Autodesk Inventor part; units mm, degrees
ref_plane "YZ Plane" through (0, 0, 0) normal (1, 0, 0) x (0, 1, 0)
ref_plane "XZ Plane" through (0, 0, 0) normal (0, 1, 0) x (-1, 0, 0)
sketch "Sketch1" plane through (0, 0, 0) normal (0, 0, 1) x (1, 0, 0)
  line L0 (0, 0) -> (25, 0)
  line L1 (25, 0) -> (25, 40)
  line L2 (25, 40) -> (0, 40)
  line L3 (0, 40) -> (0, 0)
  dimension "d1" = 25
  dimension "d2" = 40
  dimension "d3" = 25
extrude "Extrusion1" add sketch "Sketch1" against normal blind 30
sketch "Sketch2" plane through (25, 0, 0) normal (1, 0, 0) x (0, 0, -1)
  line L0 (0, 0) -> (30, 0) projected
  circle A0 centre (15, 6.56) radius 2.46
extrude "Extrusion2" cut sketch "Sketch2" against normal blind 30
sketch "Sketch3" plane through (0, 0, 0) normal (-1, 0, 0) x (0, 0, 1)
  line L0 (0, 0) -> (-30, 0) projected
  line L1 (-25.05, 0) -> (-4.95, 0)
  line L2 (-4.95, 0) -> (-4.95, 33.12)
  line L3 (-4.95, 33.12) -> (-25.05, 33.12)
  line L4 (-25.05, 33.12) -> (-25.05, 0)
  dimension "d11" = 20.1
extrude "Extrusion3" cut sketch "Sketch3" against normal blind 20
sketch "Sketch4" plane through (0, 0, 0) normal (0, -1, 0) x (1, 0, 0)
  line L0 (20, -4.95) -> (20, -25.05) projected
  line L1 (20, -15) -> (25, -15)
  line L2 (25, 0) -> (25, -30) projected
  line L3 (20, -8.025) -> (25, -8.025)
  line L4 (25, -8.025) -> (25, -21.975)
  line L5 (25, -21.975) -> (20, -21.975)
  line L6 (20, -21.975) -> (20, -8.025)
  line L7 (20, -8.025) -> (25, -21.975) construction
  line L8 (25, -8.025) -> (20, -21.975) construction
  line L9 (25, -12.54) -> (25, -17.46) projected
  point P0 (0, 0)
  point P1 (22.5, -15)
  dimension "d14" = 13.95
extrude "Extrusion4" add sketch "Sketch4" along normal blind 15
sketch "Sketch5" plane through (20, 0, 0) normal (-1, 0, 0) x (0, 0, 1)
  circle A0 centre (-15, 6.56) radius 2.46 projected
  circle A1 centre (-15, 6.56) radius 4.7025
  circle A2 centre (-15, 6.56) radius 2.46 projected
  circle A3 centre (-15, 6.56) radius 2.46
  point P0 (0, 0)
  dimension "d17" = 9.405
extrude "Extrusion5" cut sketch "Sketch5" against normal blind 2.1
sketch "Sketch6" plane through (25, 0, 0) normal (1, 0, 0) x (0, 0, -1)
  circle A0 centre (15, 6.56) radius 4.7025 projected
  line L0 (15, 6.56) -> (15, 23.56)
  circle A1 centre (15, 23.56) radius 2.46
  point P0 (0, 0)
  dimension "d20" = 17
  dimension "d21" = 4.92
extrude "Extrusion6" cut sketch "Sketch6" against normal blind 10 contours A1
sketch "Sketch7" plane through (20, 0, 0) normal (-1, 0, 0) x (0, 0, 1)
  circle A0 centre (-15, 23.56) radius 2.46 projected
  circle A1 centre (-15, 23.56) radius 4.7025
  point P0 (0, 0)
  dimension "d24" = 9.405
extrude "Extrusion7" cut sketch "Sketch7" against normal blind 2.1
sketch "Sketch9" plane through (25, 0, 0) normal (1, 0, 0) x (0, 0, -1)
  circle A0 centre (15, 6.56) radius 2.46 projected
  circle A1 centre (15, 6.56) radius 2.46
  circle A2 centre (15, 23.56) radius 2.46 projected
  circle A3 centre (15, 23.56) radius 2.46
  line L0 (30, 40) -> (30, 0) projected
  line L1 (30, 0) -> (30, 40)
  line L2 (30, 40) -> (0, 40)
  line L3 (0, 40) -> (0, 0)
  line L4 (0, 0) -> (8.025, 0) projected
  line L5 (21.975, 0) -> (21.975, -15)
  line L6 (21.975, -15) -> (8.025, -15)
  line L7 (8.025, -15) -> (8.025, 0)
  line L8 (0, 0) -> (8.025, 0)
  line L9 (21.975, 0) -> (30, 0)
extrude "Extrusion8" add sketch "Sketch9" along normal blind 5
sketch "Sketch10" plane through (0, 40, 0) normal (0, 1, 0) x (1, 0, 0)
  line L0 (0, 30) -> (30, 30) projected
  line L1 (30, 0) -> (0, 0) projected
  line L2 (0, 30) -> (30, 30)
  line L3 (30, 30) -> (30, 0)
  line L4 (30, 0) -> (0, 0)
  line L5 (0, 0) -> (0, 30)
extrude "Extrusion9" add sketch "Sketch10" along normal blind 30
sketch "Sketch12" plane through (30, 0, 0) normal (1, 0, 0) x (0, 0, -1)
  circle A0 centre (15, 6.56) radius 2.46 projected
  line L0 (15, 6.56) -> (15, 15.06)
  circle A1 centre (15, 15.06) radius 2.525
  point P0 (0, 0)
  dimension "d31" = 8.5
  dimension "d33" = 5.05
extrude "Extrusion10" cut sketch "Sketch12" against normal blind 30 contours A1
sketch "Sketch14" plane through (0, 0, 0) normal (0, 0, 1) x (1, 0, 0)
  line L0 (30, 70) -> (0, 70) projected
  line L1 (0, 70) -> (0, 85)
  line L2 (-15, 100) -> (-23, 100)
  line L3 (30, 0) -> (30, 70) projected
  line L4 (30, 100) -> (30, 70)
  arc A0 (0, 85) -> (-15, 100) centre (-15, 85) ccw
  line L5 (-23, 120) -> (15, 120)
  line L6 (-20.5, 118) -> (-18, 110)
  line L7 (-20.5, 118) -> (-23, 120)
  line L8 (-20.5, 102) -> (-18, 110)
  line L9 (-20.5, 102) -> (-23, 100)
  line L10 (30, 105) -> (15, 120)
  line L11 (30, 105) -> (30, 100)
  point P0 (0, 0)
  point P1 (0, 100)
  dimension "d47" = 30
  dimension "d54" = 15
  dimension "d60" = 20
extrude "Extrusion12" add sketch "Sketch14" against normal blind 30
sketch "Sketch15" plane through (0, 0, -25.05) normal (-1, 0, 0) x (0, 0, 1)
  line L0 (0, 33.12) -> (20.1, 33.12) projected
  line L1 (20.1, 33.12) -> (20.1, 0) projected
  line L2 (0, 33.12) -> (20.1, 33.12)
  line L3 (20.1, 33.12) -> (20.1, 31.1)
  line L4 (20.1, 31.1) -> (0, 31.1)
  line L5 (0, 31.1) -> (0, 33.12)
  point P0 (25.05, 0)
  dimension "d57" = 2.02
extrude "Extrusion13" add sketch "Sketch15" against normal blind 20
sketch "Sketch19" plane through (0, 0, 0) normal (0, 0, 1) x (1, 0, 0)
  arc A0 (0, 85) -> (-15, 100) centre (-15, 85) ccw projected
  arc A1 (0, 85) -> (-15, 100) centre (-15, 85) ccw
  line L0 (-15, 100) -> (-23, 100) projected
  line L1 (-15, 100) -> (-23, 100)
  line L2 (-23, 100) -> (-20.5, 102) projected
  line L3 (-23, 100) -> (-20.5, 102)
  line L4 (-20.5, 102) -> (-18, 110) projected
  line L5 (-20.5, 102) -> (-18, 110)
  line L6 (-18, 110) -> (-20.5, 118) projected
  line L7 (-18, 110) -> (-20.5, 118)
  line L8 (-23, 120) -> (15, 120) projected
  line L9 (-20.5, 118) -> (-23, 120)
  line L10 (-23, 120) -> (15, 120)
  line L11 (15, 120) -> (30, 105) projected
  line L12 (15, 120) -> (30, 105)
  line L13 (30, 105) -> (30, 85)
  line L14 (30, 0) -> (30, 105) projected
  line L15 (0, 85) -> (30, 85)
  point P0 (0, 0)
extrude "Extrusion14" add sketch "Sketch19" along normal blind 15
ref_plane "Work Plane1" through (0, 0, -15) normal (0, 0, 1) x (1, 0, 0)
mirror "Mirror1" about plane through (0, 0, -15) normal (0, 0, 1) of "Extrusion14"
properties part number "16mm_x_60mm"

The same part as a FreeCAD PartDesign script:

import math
import FreeCAD as App
import Part
import Sketcher
Q = App.Units.Quantity

doc = App.newDocument("Part")
body = doc.addObject("PartDesign::Body", "Body")

sketch1 = body.newObject("Sketcher::SketchObject", "Sketch")
sketch1.AttachmentSupport = (doc.getObject("XY_Plane"), [""])
sketch1.MapMode = "FlatFace"
sketch1.addGeometry([
    Part.LineSegment(App.Vector(0, 40, 0), App.Vector(0, 0, 0)),
    Part.LineSegment(App.Vector(0, 0, 0), App.Vector(25, 0, 0)),
    Part.LineSegment(App.Vector(25, 0, 0), App.Vector(25, 40, 0)),
    Part.LineSegment(App.Vector(25, 40, 0), App.Vector(0, 40, 0)),
], False)
sketch1.addConstraint([
    Sketcher.Constraint("Coincident", 0, 2, 1, 1),
    Sketcher.Constraint("Coincident", 1, 2, 2, 1),
    Sketcher.Constraint("Coincident", 2, 2, 3, 1),
    Sketcher.Constraint("Coincident", 3, 2, 0, 1),
    Sketcher.Constraint("Vertical", 0),
    Sketcher.Constraint("Horizontal", 1),
    Sketcher.Constraint("Vertical", 2),
    Sketcher.Constraint("Horizontal", 3),
    Sketcher.Constraint("Coincident", 0, 2, -1, 1),
    Sketcher.Constraint("DistanceX", 1, 1, 1, 2, 25.0),
    Sketcher.Constraint("DistanceY", 0, 2, 0, 1, 40.0),
])
pad1 = body.newObject("PartDesign::Pad", "Pad")
pad1.Profile = sketch1
pad1.Length = 30
pad1.Reversed = True

sketch2 = body.newObject("Sketcher::SketchObject", "Sketch001")
sketch2.AttachmentSupport = (doc.getObject("YZ_Plane"), [""])
sketch2.MapMode = "FlatFace"
sketch2.AttachmentOffset = App.Placement(App.Vector(0, 0, 25), App.Rotation())
sketch2.addGeometry(Part.Circle(App.Vector(6.56, -15, 0), App.Vector(0, 0, 1), 2.46), False)
sketch2.addConstraint([
    Sketcher.Constraint("Diameter", 0, 4.92),
    Sketcher.Constraint("DistanceY", 0, 3, -1, 1, 15.0),
    Sketcher.Constraint("DistanceX", -1, 1, 0, 3, 6.56),
])
pocket1 = body.newObject("PartDesign::Pocket", "Pocket")
pocket1.Profile = sketch2
pocket1.Length = 30

sketch3 = body.newObject("Sketcher::SketchObject", "Sketch002")
sketch3.AttachmentSupport = (doc.getObject("YZ_Plane"), [""])
sketch3.MapMode = "FlatFace"
sketch3.addGeometry([
    Part.LineSegment(App.Vector(0, -25.05, 0), App.Vector(0, -4.95, 0)),
    Part.LineSegment(App.Vector(0, -4.95, 0), App.Vector(33.12, -4.95, 0)),
    Part.LineSegment(App.Vector(33.12, -4.95, 0), App.Vector(33.12, -25.05, 0)),
    Part.LineSegment(App.Vector(33.12, -25.05, 0), App.Vector(0, -25.05, 0)),
], False)
sketch3.addConstraint([
    Sketcher.Constraint("Coincident", 0, 2, 1, 1),
    Sketcher.Constraint("Coincident", 1, 2, 2, 1),
    Sketcher.Constraint("Coincident", 2, 2, 3, 1),
    Sketcher.Constraint("Coincident", 3, 2, 0, 1),
    Sketcher.Constraint("Vertical", 0),
    Sketcher.Constraint("Horizontal", 1),
    Sketcher.Constraint("Vertical", 2),
    Sketcher.Constraint("Horizontal", 3),
    Sketcher.Constraint("PointOnObject", 0, 2, -2),
    Sketcher.Constraint("DistanceY", 0, 1, 0, 2, 20.1),
    Sketcher.Constraint("DistanceX", 1, 1, 1, 2, 33.12),
    Sketcher.Constraint("DistanceY", 0, 2, -1, 1, 4.95),
])
pocket2 = body.newObject("PartDesign::Pocket", "Pocket001")
pocket2.Profile = sketch3
pocket2.Length = 20
pocket2.Reversed = True

sketch4 = body.newObject("Sketcher::SketchObject", "Sketch003")
sketch4.AttachmentSupport = (doc.getObject("XZ_Plane"), [""])
sketch4.MapMode = "FlatFace"
sketch4.addGeometry([
    Part.LineSegment(App.Vector(25, -8.025, 0), App.Vector(20, -8.025, 0)),
    Part.LineSegment(App.Vector(20, -8.025, 0), App.Vector(20, -21.975, 0)),
    Part.LineSegment(App.Vector(20, -21.975, 0), App.Vector(25, -21.975, 0)),
    Part.LineSegment(App.Vector(25, -21.975, 0), App.Vector(25, -8.025, 0)),
], False)
sketch4.addConstraint([
    Sketcher.Constraint("Coincident", 0, 2, 1, 1),
    Sketcher.Constraint("Coincident", 1, 2, 2, 1),
    Sketcher.Constraint("Coincident", 2, 2, 3, 1),
    Sketcher.Constraint("Coincident", 3, 2, 0, 1),
    Sketcher.Constraint("Horizontal", 0),
    Sketcher.Constraint("Vertical", 1),
    Sketcher.Constraint("Horizontal", 2),
    Sketcher.Constraint("Vertical", 3),
    Sketcher.Constraint("DistanceY", 1, 2, 1, 1, 13.95),
    Sketcher.Constraint("DistanceX", 0, 2, 0, 1, 5.0),
    Sketcher.Constraint("DistanceX", -1, 1, 0, 2, 20.0),
    Sketcher.Constraint("DistanceY", 0, 2, -1, 1, 8.025),
])
pad2 = body.newObject("PartDesign::Pad", "Pad001")
pad2.Profile = sketch4
pad2.Length = 15

sketch5 = body.newObject("Sketcher::SketchObject", "Sketch004")
sketch5.AttachmentSupport = (doc.getObject("YZ_Plane"), [""])
sketch5.MapMode = "FlatFace"
sketch5.AttachmentOffset = App.Placement(App.Vector(0, 0, 20), App.Rotation())
sketch5.addGeometry([
    Part.Circle(App.Vector(6.56, -15, 0), App.Vector(0, 0, 1), 4.7025),
    Part.Circle(App.Vector(6.56, -15, 0), App.Vector(0, 0, 1), 2.46),
], False)
sketch5.addConstraint([
    Sketcher.Constraint("Coincident", 1, 3, 0, 3),
    Sketcher.Constraint("Diameter", 0, 9.405),
    Sketcher.Constraint("Diameter", 1, 4.92),
    Sketcher.Constraint("DistanceY", 0, 3, -1, 1, 15.0),
    Sketcher.Constraint("DistanceX", -1, 1, 0, 3, 6.56),
])
pocket3 = body.newObject("PartDesign::Pocket", "Pocket002")
pocket3.Profile = sketch5
pocket3.Length = 2.1
pocket3.Reversed = True

sketch6 = body.newObject("Sketcher::SketchObject", "Sketch005")
sketch6.AttachmentSupport = (doc.getObject("YZ_Plane"), [""])
sketch6.MapMode = "FlatFace"
sketch6.AttachmentOffset = App.Placement(App.Vector(0, 0, 25), App.Rotation())
sketch6.addGeometry(Part.Circle(App.Vector(23.56, -15, 0), App.Vector(0, 0, 1), 2.46), False)
sketch6.addConstraint([
    Sketcher.Constraint("Diameter", 0, 4.92),
    Sketcher.Constraint("DistanceY", 0, 3, -1, 1, 15.0),
    Sketcher.Constraint("DistanceX", -1, 1, 0, 3, 23.56),
])
pocket4 = body.newObject("PartDesign::Pocket", "Pocket003")
pocket4.Profile = sketch6
pocket4.Length = 10

sketch7 = body.newObject("Sketcher::SketchObject", "Sketch006")
sketch7.AttachmentSupport = (doc.getObject("YZ_Plane"), [""])
sketch7.MapMode = "FlatFace"
sketch7.AttachmentOffset = App.Placement(App.Vector(0, 0, 20), App.Rotation())
sketch7.addGeometry([
    Part.Circle(App.Vector(23.56, -15, 0), App.Vector(0, 0, 1), 4.7025),
    Part.Circle(App.Vector(23.56, -15, 0), App.Vector(0, 0, 1), 2.46),
], False)
sketch7.addConstraint([
    Sketcher.Constraint("Coincident", 1, 3, 0, 3),
    Sketcher.Constraint("Diameter", 0, 9.405),
    Sketcher.Constraint("Diameter", 1, 4.92),
    Sketcher.Constraint("DistanceY", 0, 3, -1, 1, 15.0),
    Sketcher.Constraint("DistanceX", -1, 1, 0, 3, 23.56),
])
pocket5 = body.newObject("PartDesign::Pocket", "Pocket004")
pocket5.Profile = sketch7
pocket5.Length = 2.1
pocket5.Reversed = True

sketch8 = body.newObject("Sketcher::SketchObject", "Sketch007")
sketch8.AttachmentSupport = (doc.getObject("YZ_Plane"), [""])
sketch8.MapMode = "FlatFace"
sketch8.AttachmentOffset = App.Placement(App.Vector(0, 0, 25), App.Rotation())
sketch8.addGeometry([
    Part.LineSegment(App.Vector(0, -30, 0), App.Vector(40, -30, 0)),
    Part.LineSegment(App.Vector(40, -30, 0), App.Vector(40, 0, 0)),
    Part.LineSegment(App.Vector(40, 0, 0), App.Vector(0, 0, 0)),
    Part.LineSegment(App.Vector(0, 0, 0), App.Vector(0, -8.025, 0)),
    Part.LineSegment(App.Vector(0, -8.025, 0), App.Vector(-15, -8.025, 0)),
    Part.LineSegment(App.Vector(-15, -8.025, 0), App.Vector(-15, -21.975, 0)),
    Part.LineSegment(App.Vector(-15, -21.975, 0), App.Vector(0, -21.975, 0)),
    Part.LineSegment(App.Vector(0, -21.975, 0), App.Vector(0, -30, 0)),
    Part.Circle(App.Vector(6.56, -15, 0), App.Vector(0, 0, 1), 2.46),
    Part.Circle(App.Vector(23.56, -15, 0), App.Vector(0, 0, 1), 2.46),
], False)
sketch8.addConstraint([
    Sketcher.Constraint("Coincident", 0, 2, 1, 1),
    Sketcher.Constraint("Coincident", 1, 2, 2, 1),
    Sketcher.Constraint("Coincident", 2, 2, 3, 1),
    Sketcher.Constraint("Coincident", 3, 2, 4, 1),
    Sketcher.Constraint("Coincident", 4, 2, 5, 1),
    Sketcher.Constraint("Coincident", 5, 2, 6, 1),
    Sketcher.Constraint("Coincident", 6, 2, 7, 1),
    Sketcher.Constraint("Coincident", 7, 2, 0, 1),
    Sketcher.Constraint("Horizontal", 0),
    Sketcher.Constraint("Vertical", 1),
    Sketcher.Constraint("Horizontal", 2),
    Sketcher.Constraint("Vertical", 3),
    Sketcher.Constraint("Horizontal", 4),
    Sketcher.Constraint("Vertical", 5),
    Sketcher.Constraint("Horizontal", 6),
    Sketcher.Constraint("Vertical", 7),
    Sketcher.Constraint("Coincident", 2, 2, -1, 1),
    Sketcher.Constraint("Equal", 8, 9),
    Sketcher.Constraint("PointOnObject", 6, 2, -2),
    Sketcher.Constraint("Horizontal", 8, 3, 9, 3),
    Sketcher.Constraint("Equal", 3, 7),
    Sketcher.Constraint("Diameter", 8, 4.92),
    Sketcher.Constraint("DistanceX", 0, 1, 0, 2, 40.0),
    Sketcher.Constraint("DistanceX", 4, 2, 4, 1, 15.0),
    Sketcher.Constraint("DistanceY", 1, 1, 1, 2, 30.0),
    Sketcher.Constraint("DistanceY", 8, 3, -1, 1, 15.0),
    Sketcher.Constraint("DistanceX", 8, 3, 9, 3, 17.0),
    Sketcher.Constraint("DistanceY", 5, 2, 5, 1, 13.95),
    Sketcher.Constraint("DistanceX", -1, 1, 8, 3, 6.56),
])
pad3 = body.newObject("PartDesign::Pad", "Pad002")
pad3.Profile = sketch8
pad3.Length = 5

sketch9 = body.newObject("Sketcher::SketchObject", "Sketch008")
sketch9.AttachmentSupport = (doc.getObject("XZ_Plane"), [""])
sketch9.MapMode = "FlatFace"
sketch9.AttachmentOffset = App.Placement(App.Vector(0, 0, -40), App.Rotation())
sketch9.addGeometry([
    Part.LineSegment(App.Vector(30, -30, 0), App.Vector(0, -30, 0)),
    Part.LineSegment(App.Vector(0, -30, 0), App.Vector(0, 0, 0)),
    Part.LineSegment(App.Vector(0, 0, 0), App.Vector(30, 0, 0)),
    Part.LineSegment(App.Vector(30, 0, 0), App.Vector(30, -30, 0)),
], False)
sketch9.addConstraint([
    Sketcher.Constraint("Coincident", 0, 2, 1, 1),
    Sketcher.Constraint("Coincident", 1, 2, 2, 1),
    Sketcher.Constraint("Coincident", 2, 2, 3, 1),
    Sketcher.Constraint("Coincident", 3, 2, 0, 1),
    Sketcher.Constraint("Horizontal", 0),
    Sketcher.Constraint("Vertical", 1),
    Sketcher.Constraint("Horizontal", 2),
    Sketcher.Constraint("Vertical", 3),
    Sketcher.Constraint("Coincident", 1, 2, -1, 1),
    Sketcher.Constraint("Equal", 2, 1),
    Sketcher.Constraint("DistanceX", 0, 2, 0, 1, 30.0),
])
pad4 = body.newObject("PartDesign::Pad", "Pad003")
pad4.Profile = sketch9
pad4.Length = 30
pad4.Reversed = True

sketch10 = body.newObject("Sketcher::SketchObject", "Sketch009")
sketch10.AttachmentSupport = (doc.getObject("YZ_Plane"), [""])
sketch10.MapMode = "FlatFace"
sketch10.AttachmentOffset = App.Placement(App.Vector(0, 0, 30), App.Rotation())
sketch10.addGeometry(Part.Circle(App.Vector(15.06, -15, 0), App.Vector(0, 0, 1), 2.525), False)
sketch10.addConstraint([
    Sketcher.Constraint("Diameter", 0, 5.05),
    Sketcher.Constraint("DistanceY", 0, 3, -1, 1, 15.0),
    Sketcher.Constraint("DistanceX", -1, 1, 0, 3, 15.06),
])
pocket6 = body.newObject("PartDesign::Pocket", "Pocket005")
pocket6.Profile = sketch10
pocket6.Length = 30

sketch11 = body.newObject("Sketcher::SketchObject", "Sketch010")
sketch11.AttachmentSupport = (doc.getObject("XY_Plane"), [""])
sketch11.MapMode = "FlatFace"
sketch11.addGeometry([
    Part.LineSegment(App.Vector(0, 70, 0), App.Vector(30, 70, 0)),
    Part.LineSegment(App.Vector(30, 70, 0), App.Vector(30, 105, 0)),
    Part.LineSegment(App.Vector(30, 105, 0), App.Vector(15, 120, 0)),
    Part.LineSegment(App.Vector(15, 120, 0), App.Vector(-23, 120, 0)),
    Part.LineSegment(App.Vector(-23, 120, 0), App.Vector(-20.5, 118, 0)),
    Part.LineSegment(App.Vector(-20.5, 118, 0), App.Vector(-18, 110, 0)),
    Part.LineSegment(App.Vector(-18, 110, 0), App.Vector(-20.5, 102, 0)),
    Part.LineSegment(App.Vector(-20.5, 102, 0), App.Vector(-23, 100, 0)),
    Part.LineSegment(App.Vector(-23, 100, 0), App.Vector(-15, 100, 0)),
    Part.ArcOfCircle(Part.Circle(App.Vector(-15, 85, 0), App.Vector(0, 0, 1), 15), math.radians(0), math.radians(90)),
    Part.LineSegment(App.Vector(0, 85, 0), App.Vector(0, 70, 0)),
], False)
sketch11.addConstraint([
    Sketcher.Constraint("Coincident", 0, 2, 1, 1),
    Sketcher.Constraint("Coincident", 1, 2, 2, 1),
    Sketcher.Constraint("Coincident", 2, 2, 3, 1),
    Sketcher.Constraint("Coincident", 3, 2, 4, 1),
    Sketcher.Constraint("Coincident", 4, 2, 5, 1),
    Sketcher.Constraint("Coincident", 5, 2, 6, 1),
    Sketcher.Constraint("Coincident", 6, 2, 7, 1),
    Sketcher.Constraint("Coincident", 7, 2, 8, 1),
    Sketcher.Constraint("Tangent", 8, 2, 9, 2),
    Sketcher.Constraint("Tangent", 9, 1, 10, 1),
    Sketcher.Constraint("Coincident", 10, 2, 0, 1),
    Sketcher.Constraint("Horizontal", 0),
    Sketcher.Constraint("Vertical", 1),
    Sketcher.Constraint("Horizontal", 3),
    Sketcher.Constraint("Horizontal", 8),
    Sketcher.Constraint("Vertical", 10),
    Sketcher.Constraint("PointOnObject", 9, 1, -2),
    Sketcher.Constraint("Vertical", 4, 2, 6, 2),
    Sketcher.Constraint("Vertical", 3, 2, 7, 2),
    Sketcher.Constraint("Equal", 5, 6),
    Sketcher.Constraint("Equal", 4, 7),
    Sketcher.Constraint("Radius", 9, 15.0),
    Sketcher.Constraint("DistanceX", 0, 1, 0, 2, 30.0),
    Sketcher.Constraint("DistanceY", 10, 2, 10, 1, 15.0),
    Sketcher.Constraint("DistanceX", -1, 1, 2, 2, 15.0),
    Sketcher.Constraint("DistanceY", 9, 3, 1, 2, 20.0),
    Sketcher.Constraint("DistanceY", 1, 2, 2, 2, 15.0),
    Sketcher.Constraint("DistanceX", 3, 2, 3, 1, 38.0),
    Sketcher.Constraint("DistanceY", -1, 1, 9, 3, 85.0),
    Sketcher.Constraint("DistanceY", -1, 1, 4, 2, 118.0),
    Sketcher.Constraint("DistanceX", 5, 2, -1, 1, 18.0),
    Sketcher.Constraint("DistanceX", 4, 2, -1, 1, 20.5),
])
pad5 = body.newObject("PartDesign::Pad", "Pad004")
pad5.Profile = sketch11
pad5.Length = 30
pad5.Reversed = True

sketch12 = body.newObject("Sketcher::SketchObject", "Sketch011")
sketch12.AttachmentSupport = (doc.getObject("YZ_Plane"), [""])
sketch12.MapMode = "FlatFace"
sketch12.addGeometry([
    Part.LineSegment(App.Vector(33.12, -4.95, 0), App.Vector(33.12, -25.05, 0)),
    Part.LineSegment(App.Vector(33.12, -25.05, 0), App.Vector(31.1, -25.05, 0)),
    Part.LineSegment(App.Vector(31.1, -25.05, 0), App.Vector(31.1, -4.95, 0)),
    Part.LineSegment(App.Vector(31.1, -4.95, 0), App.Vector(33.12, -4.95, 0)),
], False)
sketch12.addConstraint([
    Sketcher.Constraint("Coincident", 0, 2, 1, 1),
    Sketcher.Constraint("Coincident", 1, 2, 2, 1),
    Sketcher.Constraint("Coincident", 2, 2, 3, 1),
    Sketcher.Constraint("Coincident", 3, 2, 0, 1),
    Sketcher.Constraint("Vertical", 0),
    Sketcher.Constraint("Horizontal", 1),
    Sketcher.Constraint("Vertical", 2),
    Sketcher.Constraint("Horizontal", 3),
    Sketcher.Constraint("DistanceX", 1, 2, 1, 1, 2.02),
    Sketcher.Constraint("DistanceY", 0, 2, 0, 1, 20.1),
    Sketcher.Constraint("DistanceX", -1, 1, 1, 2, 31.1),
    Sketcher.Constraint("DistanceY", 0, 2, -1, 1, 25.05),
])
pad6 = body.newObject("PartDesign::Pad", "Pad005")
pad6.Profile = sketch12
pad6.Length = 20

sketch13 = body.newObject("Sketcher::SketchObject", "Sketch012")
sketch13.AttachmentSupport = (doc.getObject("XY_Plane"), [""])
sketch13.MapMode = "FlatFace"
sketch13.addGeometry([
    Part.ArcOfCircle(Part.Circle(App.Vector(-15, 85, 0), App.Vector(0, 0, 1), 15), math.radians(0), math.radians(90)),
    Part.LineSegment(App.Vector(0, 85, 0), App.Vector(30, 85, 0)),
    Part.LineSegment(App.Vector(30, 85, 0), App.Vector(30, 105, 0)),
    Part.LineSegment(App.Vector(30, 105, 0), App.Vector(15, 120, 0)),
    Part.LineSegment(App.Vector(15, 120, 0), App.Vector(-23, 120, 0)),
    Part.LineSegment(App.Vector(-23, 120, 0), App.Vector(-20.5, 118, 0)),
    Part.LineSegment(App.Vector(-20.5, 118, 0), App.Vector(-18, 110, 0)),
    Part.LineSegment(App.Vector(-18, 110, 0), App.Vector(-20.5, 102, 0)),
    Part.LineSegment(App.Vector(-20.5, 102, 0), App.Vector(-23, 100, 0)),
    Part.LineSegment(App.Vector(-23, 100, 0), App.Vector(-15, 100, 0)),
], False)
sketch13.addConstraint([
    Sketcher.Constraint("Coincident", 0, 1, 1, 1),
    Sketcher.Constraint("Coincident", 1, 2, 2, 1),
    Sketcher.Constraint("Coincident", 2, 2, 3, 1),
    Sketcher.Constraint("Coincident", 3, 2, 4, 1),
    Sketcher.Constraint("Coincident", 4, 2, 5, 1),
    Sketcher.Constraint("Coincident", 5, 2, 6, 1),
    Sketcher.Constraint("Coincident", 6, 2, 7, 1),
    Sketcher.Constraint("Coincident", 7, 2, 8, 1),
    Sketcher.Constraint("Coincident", 8, 2, 9, 1),
    Sketcher.Constraint("Tangent", 9, 2, 0, 2),
    Sketcher.Constraint("Horizontal", 1),
    Sketcher.Constraint("Vertical", 2),
    Sketcher.Constraint("Horizontal", 4),
    Sketcher.Constraint("Horizontal", 9),
    Sketcher.Constraint("PointOnObject", 0, 1, -2),
    Sketcher.Constraint("Vertical", 5, 2, 7, 2),
    Sketcher.Constraint("Vertical", 4, 2, 8, 2),
    Sketcher.Constraint("Equal", 6, 7),
    Sketcher.Constraint("Equal", 5, 8),
    Sketcher.Constraint("Radius", 0, 15.0),
    Sketcher.Constraint("DistanceX", 1, 1, 1, 2, 30.0),
    Sketcher.Constraint("DistanceX", 4, 2, 4, 1, 38.0),
    Sketcher.Constraint("DistanceX", 9, 1, 9, 2, 8.0),
    Sketcher.Constraint("DistanceY", 2, 1, 2, 2, 20.0),
    Sketcher.Constraint("Angle", 3, Q("135 deg")),
    Sketcher.Constraint("DistanceY", -1, 1, 0, 3, 85.0),
    Sketcher.Constraint("DistanceY", -1, 1, 0, 1, 85.0),
    Sketcher.Constraint("DistanceY", -1, 1, 5, 2, 118.0),
    Sketcher.Constraint("DistanceX", 6, 2, -1, 1, 18.0),
    Sketcher.Constraint("DistanceX", 5, 2, -1, 1, 20.5),
])
pad7 = body.newObject("PartDesign::Pad", "Pad006")
pad7.Profile = sketch13
pad7.Length = 15
doc.recompute()

datumplane = body.newObject("PartDesign::Plane", "DatumPlane")
datumplane.AttachmentSupport = (doc.getObject("XY_Plane"), [""])
datumplane.MapMode = "FlatFace"
datumplane.AttachmentOffset = App.Placement(App.Vector(0, 0, -15), App.Rotation())
mirrored = body.newObject("PartDesign::Mirrored", "Mirrored")
mirrored.Originals = [pad7]
mirrored.MirrorPlane = (datumplane, [""])
body.Tip = mirrored

doc.recompute()
